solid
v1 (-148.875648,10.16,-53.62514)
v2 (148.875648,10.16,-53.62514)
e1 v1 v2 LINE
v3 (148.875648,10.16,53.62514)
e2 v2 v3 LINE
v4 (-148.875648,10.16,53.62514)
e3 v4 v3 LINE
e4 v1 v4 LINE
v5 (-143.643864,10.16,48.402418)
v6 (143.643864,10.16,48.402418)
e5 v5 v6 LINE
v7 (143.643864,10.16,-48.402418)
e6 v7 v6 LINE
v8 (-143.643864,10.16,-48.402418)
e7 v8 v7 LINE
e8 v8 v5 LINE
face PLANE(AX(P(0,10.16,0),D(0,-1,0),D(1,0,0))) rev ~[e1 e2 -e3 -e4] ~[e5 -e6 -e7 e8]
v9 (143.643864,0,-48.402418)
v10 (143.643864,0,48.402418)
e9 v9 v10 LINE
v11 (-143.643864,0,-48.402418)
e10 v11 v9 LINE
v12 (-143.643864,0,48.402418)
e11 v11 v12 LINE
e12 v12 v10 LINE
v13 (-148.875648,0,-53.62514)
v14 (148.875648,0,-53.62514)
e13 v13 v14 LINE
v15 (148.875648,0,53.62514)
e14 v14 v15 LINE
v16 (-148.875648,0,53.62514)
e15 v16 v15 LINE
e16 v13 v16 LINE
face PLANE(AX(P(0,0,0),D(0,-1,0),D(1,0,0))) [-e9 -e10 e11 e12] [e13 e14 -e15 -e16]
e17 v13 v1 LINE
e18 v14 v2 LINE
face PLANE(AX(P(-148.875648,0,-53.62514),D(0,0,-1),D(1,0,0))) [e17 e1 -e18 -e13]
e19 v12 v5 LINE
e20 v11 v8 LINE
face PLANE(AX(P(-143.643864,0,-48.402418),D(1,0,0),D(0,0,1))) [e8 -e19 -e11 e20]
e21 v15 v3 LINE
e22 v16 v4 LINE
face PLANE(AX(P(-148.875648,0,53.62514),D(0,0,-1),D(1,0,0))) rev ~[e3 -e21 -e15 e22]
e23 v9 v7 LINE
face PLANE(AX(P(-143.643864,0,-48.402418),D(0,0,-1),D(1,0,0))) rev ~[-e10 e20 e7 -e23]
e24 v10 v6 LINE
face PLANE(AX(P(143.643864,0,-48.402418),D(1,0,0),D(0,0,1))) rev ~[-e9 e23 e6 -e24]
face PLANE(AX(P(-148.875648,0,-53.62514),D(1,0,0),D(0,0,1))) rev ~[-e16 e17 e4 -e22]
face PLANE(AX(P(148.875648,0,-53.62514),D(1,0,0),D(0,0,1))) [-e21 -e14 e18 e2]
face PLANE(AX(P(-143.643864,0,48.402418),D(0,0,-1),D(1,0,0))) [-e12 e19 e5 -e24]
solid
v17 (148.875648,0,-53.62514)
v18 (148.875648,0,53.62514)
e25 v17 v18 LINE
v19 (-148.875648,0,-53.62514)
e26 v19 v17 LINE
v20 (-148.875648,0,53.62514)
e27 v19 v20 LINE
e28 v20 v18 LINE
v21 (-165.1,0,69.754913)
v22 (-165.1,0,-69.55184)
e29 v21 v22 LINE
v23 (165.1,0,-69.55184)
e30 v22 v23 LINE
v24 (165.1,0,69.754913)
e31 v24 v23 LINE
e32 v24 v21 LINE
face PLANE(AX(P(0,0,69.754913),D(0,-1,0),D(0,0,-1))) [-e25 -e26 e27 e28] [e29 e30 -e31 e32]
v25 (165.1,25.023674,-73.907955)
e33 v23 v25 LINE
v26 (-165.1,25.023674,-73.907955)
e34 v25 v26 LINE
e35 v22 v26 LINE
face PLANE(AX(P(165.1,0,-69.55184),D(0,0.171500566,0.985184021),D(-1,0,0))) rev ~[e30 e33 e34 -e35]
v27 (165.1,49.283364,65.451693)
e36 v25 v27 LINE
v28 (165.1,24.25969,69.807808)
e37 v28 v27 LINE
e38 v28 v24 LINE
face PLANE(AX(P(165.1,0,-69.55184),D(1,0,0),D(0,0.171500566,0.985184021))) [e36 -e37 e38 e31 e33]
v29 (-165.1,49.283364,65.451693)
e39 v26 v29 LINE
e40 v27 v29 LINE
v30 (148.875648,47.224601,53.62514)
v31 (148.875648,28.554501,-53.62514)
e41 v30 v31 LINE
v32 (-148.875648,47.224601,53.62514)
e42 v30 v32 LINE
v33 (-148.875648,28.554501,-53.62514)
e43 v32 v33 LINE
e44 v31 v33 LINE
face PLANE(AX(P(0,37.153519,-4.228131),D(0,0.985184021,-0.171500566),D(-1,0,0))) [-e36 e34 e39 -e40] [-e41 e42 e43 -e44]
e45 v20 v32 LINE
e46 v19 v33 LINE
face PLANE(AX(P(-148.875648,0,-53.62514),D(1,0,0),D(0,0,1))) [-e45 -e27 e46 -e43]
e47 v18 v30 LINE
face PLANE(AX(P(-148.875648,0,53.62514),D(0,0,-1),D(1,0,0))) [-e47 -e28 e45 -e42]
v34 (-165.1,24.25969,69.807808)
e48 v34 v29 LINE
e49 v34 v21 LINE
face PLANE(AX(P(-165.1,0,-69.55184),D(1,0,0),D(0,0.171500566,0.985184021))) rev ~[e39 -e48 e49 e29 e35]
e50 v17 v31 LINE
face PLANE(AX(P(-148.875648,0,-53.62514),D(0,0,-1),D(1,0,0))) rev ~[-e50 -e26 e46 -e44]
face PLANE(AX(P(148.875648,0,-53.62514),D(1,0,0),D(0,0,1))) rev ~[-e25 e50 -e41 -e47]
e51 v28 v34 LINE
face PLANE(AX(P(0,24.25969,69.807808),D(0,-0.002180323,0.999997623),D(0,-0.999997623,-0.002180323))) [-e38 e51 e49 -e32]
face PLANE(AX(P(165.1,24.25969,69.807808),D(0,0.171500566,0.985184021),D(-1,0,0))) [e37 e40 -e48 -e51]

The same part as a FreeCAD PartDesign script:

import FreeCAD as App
import Part
import Sketcher
from FreeCAD import Vector
Q = App.Units.Quantity

doc = App.newDocument("Part")
body = doc.addObject("PartDesign::Body", "Body")
body.AllowCompound = True

# Sketch on YZ plane
sketch1 = body.newObject("Sketcher::SketchObject", "Sketch")
sketch1.AttachmentSupport = (doc.getObject("YZ_Plane"), [""])
sketch1.MapMode = "FlatFace"
sketch1.addGeometry([
    Part.LineSegment(Vector(0, 70, 0), Vector(0, -70, 0)),
    Part.LineSegment(Vector(0, -70, 0), Vector(24, 70, 0)),
    Part.LineSegment(Vector(24, 70, 0), Vector(0, 70, 0)),
], False)
sketch1.addConstraint([
    Sketcher.Constraint("Coincident", 0, 2, 1, 1),
    Sketcher.Constraint("Coincident", 1, 2, 2, 1),
    Sketcher.Constraint("Coincident", 2, 2, 0, 1),
    Sketcher.Constraint("Vertical", 0),
    Sketcher.Constraint("PointOnObject", 0, 2, -2),
    Sketcher.Constraint("Distance", 1, Q("141.455449 mm")),
    Sketcher.Constraint("DistanceY", 0, 2, 0, 1, Q("139.306754 mm")),
    Sketcher.Constraint("DistanceY", 0, 2, -1, 1, Q("69.55184 mm")),
    Sketcher.Constraint("DistanceX", -1, 1, 1, 2, Q("24.25969 mm")),
])
pad1 = body.newObject("PartDesign::Pad", "Pad")
pad1.Profile = sketch1
pad1.Type = "TwoLengths"
pad1.Length = Q("6.5 in")
pad1.Length2 = Q("6.5 in")

# Sketch on an angled plane
sketch2 = body.newObject("Sketcher::SketchObject", "Sketch001")
sketch2.Placement = App.Placement(Vector(0, 11.751452, -2.04569), App.Rotation(Vector(-1, 0, 0), Vector(0, 0.171500566, 0.985184021), Vector(0, 0.985184021, -0.171500566), "ZXY"))
sketch2.addGeometry([
    Part.LineSegment(Vector(-165, 73, 0), Vector(-165, -69, 0)),
    Part.LineSegment(Vector(-165, -69, 0), Vector(165, -69, 0)),
    Part.LineSegment(Vector(165, -69, 0), Vector(165, 73, 0)),
    Part.LineSegment(Vector(165, 73, 0), Vector(-165, 73, 0)),
], False)
sketch2.addConstraint([
    Sketcher.Constraint("Coincident", 0, 2, 1, 1),
    Sketcher.Constraint("Coincident", 1, 2, 2, 1),
    Sketcher.Constraint("Coincident", 2, 2, 3, 1),
    Sketcher.Constraint("Coincident", 3, 2, 0, 1),
    Sketcher.Constraint("Vertical", 0),
    Sketcher.Constraint("Horizontal", 1),
    Sketcher.Constraint("Vertical", 2),
    Sketcher.Constraint("Horizontal", 3),
    Sketcher.Constraint("DistanceX", 1, 1, 1, 2, Q("13 in")),
    Sketcher.Constraint("DistanceX", 0, 2, -1, 1, Q("6.5 in")),
    Sketcher.Constraint("DistanceY", 0, 2, 0, 1, Q("141.455449 mm")),
    Sketcher.Constraint("DistanceY", 0, 2, -1, 1, Q("68.521362 mm")),
])
pad2 = body.newObject("PartDesign::Pad", "Pad001")
pad2.Profile = sketch2
pad2.Length = Q("1 in")

# Sketch on XZ plane
sketch3 = body.newObject("Sketcher::SketchObject", "Sketch002")
sketch3.AttachmentSupport = (doc.getObject("XZ_Plane"), [""])
sketch3.MapMode = "FlatFace"
sketch3.addGeometry([
    Part.LineSegment(Vector(-149, 54, 0), Vector(-149, -54, 0)),  # 0
    Part.LineSegment(Vector(-149, -54, 0), Vector(149, -54, 0)),  # 1
    Part.LineSegment(Vector(149, -54, 0), Vector(149, 54, 0)),  # 2
    Part.LineSegment(Vector(149, 54, 0), Vector(-149, 54, 0)),  # 3
    Part.LineSegment(Vector(144, -48, 0), Vector(-144, -48, 0)),  # 4
    Part.LineSegment(Vector(-144, -48, 0), Vector(-144, 48, 0)),  # 5
    Part.LineSegment(Vector(-144, 48, 0), Vector(144, 48, 0)),  # 6
    Part.LineSegment(Vector(144, 48, 0), Vector(144, -48, 0)),  # 7
], False)
sketch3.addConstraint([
    Sketcher.Constraint("Coincident", 0, 2, 1, 1),
    Sketcher.Constraint("Coincident", 1, 2, 2, 1),
    Sketcher.Constraint("Coincident", 2, 2, 3, 1),
    Sketcher.Constraint("Coincident", 3, 2, 0, 1),
    Sketcher.Constraint("Coincident", 4, 2, 5, 1),
    Sketcher.Constraint("Coincident", 5, 2, 6, 1),
    Sketcher.Constraint("Coincident", 6, 2, 7, 1),
    Sketcher.Constraint("Coincident", 7, 2, 4, 1),
    Sketcher.Constraint("Vertical", 0),
    Sketcher.Constraint("Horizontal", 1),
    Sketcher.Constraint("Vertical", 2),
    Sketcher.Constraint("Horizontal", 3),
    Sketcher.Constraint("Horizontal", 4),
    Sketcher.Constraint("Vertical", 5),
    Sketcher.Constraint("Horizontal", 6),
    Sketcher.Constraint("Vertical", 7),
    Sketcher.Constraint("Symmetric", 0, 2, 2, 2, -1, 1),
    Sketcher.Constraint("Symmetric", 4, 2, 6, 2, -1, 1),
    Sketcher.Constraint("DistanceX", 4, 2, 4, 1, Q("287.287729 mm")),
    Sketcher.Constraint("DistanceY", 0, 2, 0, 1, Q("107.250281 mm")),
    Sketcher.Constraint("DistanceX", 1, 1, 1, 2, Q("297.751297 mm")),
    Sketcher.Constraint("DistanceY", 5, 1, 5, 2, Q("96.804836 mm")),
])
pocket1 = body.newObject("PartDesign::Pocket", "Pocket")
pocket1.Profile = sketch3
pocket1.Type = "ThroughAll"

# Sketch on XZ plane
sketch4 = body.newObject("Sketcher::SketchObject", "Sketch003")
sketch4.AttachmentSupport = (doc.getObject("XZ_Plane"), [""])
sketch4.MapMode = "FlatFace"
sketch4.addGeometry([
    Part.LineSegment(Vector(-144, 48, 0), Vector(-144, -48, 0)),
    Part.LineSegment(Vector(-144, -48, 0), Vector(144, -48, 0)),
    Part.LineSegment(Vector(144, -48, 0), Vector(144, 48, 0)),
    Part.LineSegment(Vector(144, 48, 0), Vector(-144, 48, 0)),
], False)
sketch4.addConstraint([
    Sketcher.Constraint("Coincident", 0, 2, 1, 1),
    Sketcher.Constraint("Coincident", 1, 2, 2, 1),
    Sketcher.Constraint("Coincident", 2, 2, 3, 1),
    Sketcher.Constraint("Coincident", 3, 2, 0, 1),
    Sketcher.Constraint("Vertical", 0),
    Sketcher.Constraint("Horizontal", 1),
    Sketcher.Constraint("Vertical", 2),
    Sketcher.Constraint("Horizontal", 3),
    Sketcher.Constraint("Symmetric", 0, 2, 2, 2, -1, 1),
    Sketcher.Constraint("DistanceX", 1, 1, 1, 2, Q("287.287729 mm")),
    Sketcher.Constraint("DistanceY", 0, 2, 0, 1, Q("96.804836 mm")),
])
pocket2 = body.newObject("PartDesign::Pocket", "Pocket001")
pocket2.Profile = sketch4
pocket2.Type = "ThroughAll"
body2 = doc.addObject("PartDesign::Body", "Body001")

# Sketch on XZ plane
sketch5 = body2.newObject("Sketcher::SketchObject", "Sketch004")
sketch5.AttachmentSupport = (doc.getObject("XZ_Plane001"), [""])
sketch5.MapMode = "FlatFace"
sketch5.addGeometry([
    Part.LineSegment(Vector(-149, 54, 0), Vector(-149, -54, 0)),  # 0
    Part.LineSegment(Vector(-149, -54, 0), Vector(149, -54, 0)),  # 1
    Part.LineSegment(Vector(149, -54, 0), Vector(149, 54, 0)),  # 2
    Part.LineSegment(Vector(149, 54, 0), Vector(-149, 54, 0)),  # 3
    Part.LineSegment(Vector(144, -48, 0), Vector(-144, -48, 0)),  # 4
    Part.LineSegment(Vector(-144, -48, 0), Vector(-144, 48, 0)),  # 5
    Part.LineSegment(Vector(-144, 48, 0), Vector(144, 48, 0)),  # 6
    Part.LineSegment(Vector(144, 48, 0), Vector(144, -48, 0)),  # 7
], False)
sketch5.addConstraint([
    Sketcher.Constraint("Coincident", 0, 2, 1, 1),
    Sketcher.Constraint("Coincident", 1, 2, 2, 1),
    Sketcher.Constraint("Coincident", 2, 2, 3, 1),
    Sketcher.Constraint("Coincident", 3, 2, 0, 1),
    Sketcher.Constraint("Coincident", 4, 2, 5, 1),
    Sketcher.Constraint("Coincident", 5, 2, 6, 1),
    Sketcher.Constraint("Coincident", 6, 2, 7, 1),
    Sketcher.Constraint("Coincident", 7, 2, 4, 1),
    Sketcher.Constraint("Vertical", 0),
    Sketcher.Constraint("Horizontal", 1),
    Sketcher.Constraint("Vertical", 2),
    Sketcher.Constraint("Horizontal", 3),
    Sketcher.Constraint("Horizontal", 4),
    Sketcher.Constraint("Vertical", 5),
    Sketcher.Constraint("Horizontal", 6),
    Sketcher.Constraint("Vertical", 7),
    Sketcher.Constraint("Symmetric", 0, 2, 2, 2, -1, 1),
    Sketcher.Constraint("Symmetric", 4, 2, 6, 2, -1, 1),
    Sketcher.Constraint("DistanceX", 4, 2, 4, 1, Q("287.287729 mm")),
    Sketcher.Constraint("DistanceY", 0, 2, 0, 1, Q("107.250281 mm")),
    Sketcher.Constraint("DistanceX", 1, 1, 1, 2, Q("297.751297 mm")),
    Sketcher.Constraint("DistanceY", 5, 1, 5, 2, Q("96.804836 mm")),
])
pad3 = body2.newObject("PartDesign::Pad", "Pad002")
pad3.Profile = sketch5
pad3.Length = Q("0.4 in")
pad3.Reversed = True

doc.recompute()
